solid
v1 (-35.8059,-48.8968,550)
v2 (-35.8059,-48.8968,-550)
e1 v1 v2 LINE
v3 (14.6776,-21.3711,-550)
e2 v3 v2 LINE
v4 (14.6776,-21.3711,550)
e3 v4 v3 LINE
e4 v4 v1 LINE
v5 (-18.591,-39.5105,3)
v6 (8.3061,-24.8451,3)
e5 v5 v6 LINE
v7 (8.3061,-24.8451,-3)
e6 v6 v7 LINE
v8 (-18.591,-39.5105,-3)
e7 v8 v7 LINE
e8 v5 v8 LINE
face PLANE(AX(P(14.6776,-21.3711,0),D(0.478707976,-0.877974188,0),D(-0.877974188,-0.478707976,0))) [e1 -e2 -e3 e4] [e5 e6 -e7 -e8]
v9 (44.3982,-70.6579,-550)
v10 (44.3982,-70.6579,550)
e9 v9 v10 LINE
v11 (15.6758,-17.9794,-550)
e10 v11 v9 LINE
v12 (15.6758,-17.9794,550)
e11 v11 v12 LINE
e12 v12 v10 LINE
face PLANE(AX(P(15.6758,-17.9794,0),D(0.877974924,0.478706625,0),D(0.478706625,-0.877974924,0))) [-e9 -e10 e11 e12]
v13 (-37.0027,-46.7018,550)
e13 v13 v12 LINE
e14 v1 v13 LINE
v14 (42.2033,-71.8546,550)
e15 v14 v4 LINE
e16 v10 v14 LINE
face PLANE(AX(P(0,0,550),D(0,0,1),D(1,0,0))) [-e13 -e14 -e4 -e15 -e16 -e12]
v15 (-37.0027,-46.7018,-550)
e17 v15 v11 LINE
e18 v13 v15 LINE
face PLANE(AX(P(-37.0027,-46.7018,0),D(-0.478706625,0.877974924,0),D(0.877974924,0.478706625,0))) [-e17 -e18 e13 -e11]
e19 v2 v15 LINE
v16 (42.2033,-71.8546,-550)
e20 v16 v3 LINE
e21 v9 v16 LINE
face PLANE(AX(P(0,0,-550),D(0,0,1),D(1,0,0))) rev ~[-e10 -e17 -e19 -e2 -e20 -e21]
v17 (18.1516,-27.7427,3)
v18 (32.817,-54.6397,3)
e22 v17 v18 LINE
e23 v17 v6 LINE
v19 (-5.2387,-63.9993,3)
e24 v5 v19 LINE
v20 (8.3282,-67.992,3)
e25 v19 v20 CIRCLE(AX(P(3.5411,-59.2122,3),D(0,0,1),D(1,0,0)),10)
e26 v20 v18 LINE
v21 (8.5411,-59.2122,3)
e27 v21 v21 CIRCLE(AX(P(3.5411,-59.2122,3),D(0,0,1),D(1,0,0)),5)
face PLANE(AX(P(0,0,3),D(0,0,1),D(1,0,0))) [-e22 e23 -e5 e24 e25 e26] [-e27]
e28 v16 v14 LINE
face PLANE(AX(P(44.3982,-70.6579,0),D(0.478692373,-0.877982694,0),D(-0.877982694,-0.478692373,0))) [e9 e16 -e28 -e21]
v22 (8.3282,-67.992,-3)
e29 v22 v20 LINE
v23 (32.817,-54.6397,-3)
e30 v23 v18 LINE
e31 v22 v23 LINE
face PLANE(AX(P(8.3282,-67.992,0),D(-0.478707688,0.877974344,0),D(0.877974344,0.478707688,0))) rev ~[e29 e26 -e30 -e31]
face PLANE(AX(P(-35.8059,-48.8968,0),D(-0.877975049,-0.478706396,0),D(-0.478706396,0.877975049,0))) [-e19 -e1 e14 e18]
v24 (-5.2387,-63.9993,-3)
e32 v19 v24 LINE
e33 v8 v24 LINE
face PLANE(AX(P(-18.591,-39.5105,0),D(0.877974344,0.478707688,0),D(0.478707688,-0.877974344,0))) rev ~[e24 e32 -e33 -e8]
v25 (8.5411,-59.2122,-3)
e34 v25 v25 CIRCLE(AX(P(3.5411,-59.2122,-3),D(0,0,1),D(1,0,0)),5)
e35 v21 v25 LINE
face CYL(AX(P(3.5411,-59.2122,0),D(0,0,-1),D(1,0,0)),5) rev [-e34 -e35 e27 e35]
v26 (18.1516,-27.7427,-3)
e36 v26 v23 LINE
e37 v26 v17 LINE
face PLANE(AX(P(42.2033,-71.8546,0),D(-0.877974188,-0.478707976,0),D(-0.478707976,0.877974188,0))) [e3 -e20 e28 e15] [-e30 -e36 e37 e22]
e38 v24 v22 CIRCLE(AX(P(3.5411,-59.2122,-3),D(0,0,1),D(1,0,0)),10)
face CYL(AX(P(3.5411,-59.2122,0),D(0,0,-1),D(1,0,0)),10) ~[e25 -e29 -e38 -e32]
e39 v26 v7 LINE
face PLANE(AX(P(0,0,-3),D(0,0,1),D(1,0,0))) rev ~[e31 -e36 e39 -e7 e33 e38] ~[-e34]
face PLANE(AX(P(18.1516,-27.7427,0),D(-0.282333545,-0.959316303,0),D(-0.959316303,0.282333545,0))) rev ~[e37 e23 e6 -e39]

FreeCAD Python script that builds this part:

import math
import FreeCAD as App
import Part
import Sketcher

V = App.Vector
Q = App.Units.Quantity


def add_polygon(sketch, points):
    """Adds a closed chain of lines whose ends are joined by coincident constraints."""
    first, n = sketch.GeometryCount, len(points)
    for a, b in zip(points, points[1:] + points[:1]):
        sketch.addGeometry(Part.LineSegment(App.Vector(*a, 0), App.Vector(*b, 0)), False)
    for i in range(n):
        sketch.addConstraint(Sketcher.Constraint("Coincident", first + i, 2, first + (i + 1) % n, 1))

doc = App.newDocument("Part")
body = doc.addObject("PartDesign::Body", "Body")

# Sketch on XY plane
sketch1 = body.newObject("Sketcher::SketchObject", "Sketch")
sketch1.AttachmentSupport = (doc.getObject("XY_Plane"), [""])
sketch1.MapMode = "FlatFace"
add_polygon(sketch1, [(14.7, -21.4), (42.2, -71.9), (44.4, -70.7), (15.7, -18), (-37, -46.7), (-35.8, -48.9)])  # lines 0-5
sketch1.addConstraint([
    Sketcher.Constraint("Perpendicular", 0, 1),
    Sketcher.Constraint("Perpendicular", 1, 2),
    Sketcher.Constraint("Perpendicular", 2, 3),
    Sketcher.Constraint("Perpendicular", 3, 4),
    Sketcher.Constraint("Perpendicular", 4, 5),
    Sketcher.Constraint("Equal", 2, 3),
    Sketcher.Constraint("Equal", 1, 4),
    Sketcher.Constraint("Distance", 2, Q("60 mm")),
    Sketcher.Constraint("Distance", 1, Q("2.5 mm")),
    Sketcher.Constraint("Angle", 0, Q("-61.399 deg")),
    Sketcher.Constraint("DistanceY", 1, 2, -1, 1, Q("70.658 mm")),
    Sketcher.Constraint("DistanceX", 4, 2, -1, 1, Q("35.806 mm")),
])
pad1 = body.newObject("PartDesign::Pad", "Pad")
pad1.Profile = sketch1
pad1.Length = 1100
pad1.Midplane = True

# Sketch on XY plane
sketch2 = body.newObject("Sketcher::SketchObject", "Sketch001")
sketch2.AttachmentSupport = (doc.getObject("XY_Plane"), [""])
sketch2.MapMode = "FlatFace"
sketch2.addGeometry([
    Part.ArcOfCircle(Part.Circle(V(4, -59, 0), V(0, 0, 1), 10), math.radians(-151), math.radians(-61)),  # 0
    Part.LineSegment(V(8, -68, 0), V(33, -55, 0)),  # 1
    Part.LineSegment(V(33, -55, 0), V(18, -28, 0)),  # 2
    Part.LineSegment(V(18, -28, 0), V(8, -25, 0)),  # 3
    Part.LineSegment(V(8, -25, 0), V(-19, -40, 0)),  # 4
    Part.LineSegment(V(-19, -40, 0), V(-5, -64, 0)),  # 5
    Part.Circle(V(4, -59, 0), V(0, 0, 1), 5),  # 6
], False)
sketch2.addConstraint([
    Sketcher.Constraint("Tangent", 0, 2, 1, 1),
    Sketcher.Constraint("Coincident", 1, 2, 2, 1),
    Sketcher.Constraint("Coincident", 2, 2, 3, 1),
    Sketcher.Constraint("Coincident", 3, 2, 4, 1),
    Sketcher.Constraint("Coincident", 4, 2, 5, 1),
    Sketcher.Constraint("Tangent", 5, 2, 0, 1),
    Sketcher.Constraint("Coincident", 6, 3, 0, 3),
    Sketcher.Constraint("Perpendicular", 1, 2),
    Sketcher.Constraint("Perpendicular", 2, 4),
    Sketcher.Constraint("Perpendicular", 4, 5),
    Sketcher.Constraint("Equal", 2, 4),
    Sketcher.Constraint("Equal", 1, 5),
    Sketcher.Constraint("Diameter", 6, Q("10 mm")),
    Sketcher.Constraint("Radius", 0, Q("10 mm")),
    Sketcher.Constraint("Angle", 1, Q("28.601 deg")),
    Sketcher.Constraint("Distance", 3, Q("10.263 mm")),
    Sketcher.Constraint("DistanceX", -1, 1, 0, 3, Q("3.541 mm")),
    Sketcher.Constraint("DistanceY", 0, 2, -1, 1, Q("67.992 mm")),
    Sketcher.Constraint("DistanceX", -1, 1, 1, 2, Q("32.817 mm")),
])
pad2 = body.newObject("PartDesign::Pad", "Pad001")
pad2.Profile = sketch2
pad2.Length = 6
pad2.Midplane = True

doc.recompute()
